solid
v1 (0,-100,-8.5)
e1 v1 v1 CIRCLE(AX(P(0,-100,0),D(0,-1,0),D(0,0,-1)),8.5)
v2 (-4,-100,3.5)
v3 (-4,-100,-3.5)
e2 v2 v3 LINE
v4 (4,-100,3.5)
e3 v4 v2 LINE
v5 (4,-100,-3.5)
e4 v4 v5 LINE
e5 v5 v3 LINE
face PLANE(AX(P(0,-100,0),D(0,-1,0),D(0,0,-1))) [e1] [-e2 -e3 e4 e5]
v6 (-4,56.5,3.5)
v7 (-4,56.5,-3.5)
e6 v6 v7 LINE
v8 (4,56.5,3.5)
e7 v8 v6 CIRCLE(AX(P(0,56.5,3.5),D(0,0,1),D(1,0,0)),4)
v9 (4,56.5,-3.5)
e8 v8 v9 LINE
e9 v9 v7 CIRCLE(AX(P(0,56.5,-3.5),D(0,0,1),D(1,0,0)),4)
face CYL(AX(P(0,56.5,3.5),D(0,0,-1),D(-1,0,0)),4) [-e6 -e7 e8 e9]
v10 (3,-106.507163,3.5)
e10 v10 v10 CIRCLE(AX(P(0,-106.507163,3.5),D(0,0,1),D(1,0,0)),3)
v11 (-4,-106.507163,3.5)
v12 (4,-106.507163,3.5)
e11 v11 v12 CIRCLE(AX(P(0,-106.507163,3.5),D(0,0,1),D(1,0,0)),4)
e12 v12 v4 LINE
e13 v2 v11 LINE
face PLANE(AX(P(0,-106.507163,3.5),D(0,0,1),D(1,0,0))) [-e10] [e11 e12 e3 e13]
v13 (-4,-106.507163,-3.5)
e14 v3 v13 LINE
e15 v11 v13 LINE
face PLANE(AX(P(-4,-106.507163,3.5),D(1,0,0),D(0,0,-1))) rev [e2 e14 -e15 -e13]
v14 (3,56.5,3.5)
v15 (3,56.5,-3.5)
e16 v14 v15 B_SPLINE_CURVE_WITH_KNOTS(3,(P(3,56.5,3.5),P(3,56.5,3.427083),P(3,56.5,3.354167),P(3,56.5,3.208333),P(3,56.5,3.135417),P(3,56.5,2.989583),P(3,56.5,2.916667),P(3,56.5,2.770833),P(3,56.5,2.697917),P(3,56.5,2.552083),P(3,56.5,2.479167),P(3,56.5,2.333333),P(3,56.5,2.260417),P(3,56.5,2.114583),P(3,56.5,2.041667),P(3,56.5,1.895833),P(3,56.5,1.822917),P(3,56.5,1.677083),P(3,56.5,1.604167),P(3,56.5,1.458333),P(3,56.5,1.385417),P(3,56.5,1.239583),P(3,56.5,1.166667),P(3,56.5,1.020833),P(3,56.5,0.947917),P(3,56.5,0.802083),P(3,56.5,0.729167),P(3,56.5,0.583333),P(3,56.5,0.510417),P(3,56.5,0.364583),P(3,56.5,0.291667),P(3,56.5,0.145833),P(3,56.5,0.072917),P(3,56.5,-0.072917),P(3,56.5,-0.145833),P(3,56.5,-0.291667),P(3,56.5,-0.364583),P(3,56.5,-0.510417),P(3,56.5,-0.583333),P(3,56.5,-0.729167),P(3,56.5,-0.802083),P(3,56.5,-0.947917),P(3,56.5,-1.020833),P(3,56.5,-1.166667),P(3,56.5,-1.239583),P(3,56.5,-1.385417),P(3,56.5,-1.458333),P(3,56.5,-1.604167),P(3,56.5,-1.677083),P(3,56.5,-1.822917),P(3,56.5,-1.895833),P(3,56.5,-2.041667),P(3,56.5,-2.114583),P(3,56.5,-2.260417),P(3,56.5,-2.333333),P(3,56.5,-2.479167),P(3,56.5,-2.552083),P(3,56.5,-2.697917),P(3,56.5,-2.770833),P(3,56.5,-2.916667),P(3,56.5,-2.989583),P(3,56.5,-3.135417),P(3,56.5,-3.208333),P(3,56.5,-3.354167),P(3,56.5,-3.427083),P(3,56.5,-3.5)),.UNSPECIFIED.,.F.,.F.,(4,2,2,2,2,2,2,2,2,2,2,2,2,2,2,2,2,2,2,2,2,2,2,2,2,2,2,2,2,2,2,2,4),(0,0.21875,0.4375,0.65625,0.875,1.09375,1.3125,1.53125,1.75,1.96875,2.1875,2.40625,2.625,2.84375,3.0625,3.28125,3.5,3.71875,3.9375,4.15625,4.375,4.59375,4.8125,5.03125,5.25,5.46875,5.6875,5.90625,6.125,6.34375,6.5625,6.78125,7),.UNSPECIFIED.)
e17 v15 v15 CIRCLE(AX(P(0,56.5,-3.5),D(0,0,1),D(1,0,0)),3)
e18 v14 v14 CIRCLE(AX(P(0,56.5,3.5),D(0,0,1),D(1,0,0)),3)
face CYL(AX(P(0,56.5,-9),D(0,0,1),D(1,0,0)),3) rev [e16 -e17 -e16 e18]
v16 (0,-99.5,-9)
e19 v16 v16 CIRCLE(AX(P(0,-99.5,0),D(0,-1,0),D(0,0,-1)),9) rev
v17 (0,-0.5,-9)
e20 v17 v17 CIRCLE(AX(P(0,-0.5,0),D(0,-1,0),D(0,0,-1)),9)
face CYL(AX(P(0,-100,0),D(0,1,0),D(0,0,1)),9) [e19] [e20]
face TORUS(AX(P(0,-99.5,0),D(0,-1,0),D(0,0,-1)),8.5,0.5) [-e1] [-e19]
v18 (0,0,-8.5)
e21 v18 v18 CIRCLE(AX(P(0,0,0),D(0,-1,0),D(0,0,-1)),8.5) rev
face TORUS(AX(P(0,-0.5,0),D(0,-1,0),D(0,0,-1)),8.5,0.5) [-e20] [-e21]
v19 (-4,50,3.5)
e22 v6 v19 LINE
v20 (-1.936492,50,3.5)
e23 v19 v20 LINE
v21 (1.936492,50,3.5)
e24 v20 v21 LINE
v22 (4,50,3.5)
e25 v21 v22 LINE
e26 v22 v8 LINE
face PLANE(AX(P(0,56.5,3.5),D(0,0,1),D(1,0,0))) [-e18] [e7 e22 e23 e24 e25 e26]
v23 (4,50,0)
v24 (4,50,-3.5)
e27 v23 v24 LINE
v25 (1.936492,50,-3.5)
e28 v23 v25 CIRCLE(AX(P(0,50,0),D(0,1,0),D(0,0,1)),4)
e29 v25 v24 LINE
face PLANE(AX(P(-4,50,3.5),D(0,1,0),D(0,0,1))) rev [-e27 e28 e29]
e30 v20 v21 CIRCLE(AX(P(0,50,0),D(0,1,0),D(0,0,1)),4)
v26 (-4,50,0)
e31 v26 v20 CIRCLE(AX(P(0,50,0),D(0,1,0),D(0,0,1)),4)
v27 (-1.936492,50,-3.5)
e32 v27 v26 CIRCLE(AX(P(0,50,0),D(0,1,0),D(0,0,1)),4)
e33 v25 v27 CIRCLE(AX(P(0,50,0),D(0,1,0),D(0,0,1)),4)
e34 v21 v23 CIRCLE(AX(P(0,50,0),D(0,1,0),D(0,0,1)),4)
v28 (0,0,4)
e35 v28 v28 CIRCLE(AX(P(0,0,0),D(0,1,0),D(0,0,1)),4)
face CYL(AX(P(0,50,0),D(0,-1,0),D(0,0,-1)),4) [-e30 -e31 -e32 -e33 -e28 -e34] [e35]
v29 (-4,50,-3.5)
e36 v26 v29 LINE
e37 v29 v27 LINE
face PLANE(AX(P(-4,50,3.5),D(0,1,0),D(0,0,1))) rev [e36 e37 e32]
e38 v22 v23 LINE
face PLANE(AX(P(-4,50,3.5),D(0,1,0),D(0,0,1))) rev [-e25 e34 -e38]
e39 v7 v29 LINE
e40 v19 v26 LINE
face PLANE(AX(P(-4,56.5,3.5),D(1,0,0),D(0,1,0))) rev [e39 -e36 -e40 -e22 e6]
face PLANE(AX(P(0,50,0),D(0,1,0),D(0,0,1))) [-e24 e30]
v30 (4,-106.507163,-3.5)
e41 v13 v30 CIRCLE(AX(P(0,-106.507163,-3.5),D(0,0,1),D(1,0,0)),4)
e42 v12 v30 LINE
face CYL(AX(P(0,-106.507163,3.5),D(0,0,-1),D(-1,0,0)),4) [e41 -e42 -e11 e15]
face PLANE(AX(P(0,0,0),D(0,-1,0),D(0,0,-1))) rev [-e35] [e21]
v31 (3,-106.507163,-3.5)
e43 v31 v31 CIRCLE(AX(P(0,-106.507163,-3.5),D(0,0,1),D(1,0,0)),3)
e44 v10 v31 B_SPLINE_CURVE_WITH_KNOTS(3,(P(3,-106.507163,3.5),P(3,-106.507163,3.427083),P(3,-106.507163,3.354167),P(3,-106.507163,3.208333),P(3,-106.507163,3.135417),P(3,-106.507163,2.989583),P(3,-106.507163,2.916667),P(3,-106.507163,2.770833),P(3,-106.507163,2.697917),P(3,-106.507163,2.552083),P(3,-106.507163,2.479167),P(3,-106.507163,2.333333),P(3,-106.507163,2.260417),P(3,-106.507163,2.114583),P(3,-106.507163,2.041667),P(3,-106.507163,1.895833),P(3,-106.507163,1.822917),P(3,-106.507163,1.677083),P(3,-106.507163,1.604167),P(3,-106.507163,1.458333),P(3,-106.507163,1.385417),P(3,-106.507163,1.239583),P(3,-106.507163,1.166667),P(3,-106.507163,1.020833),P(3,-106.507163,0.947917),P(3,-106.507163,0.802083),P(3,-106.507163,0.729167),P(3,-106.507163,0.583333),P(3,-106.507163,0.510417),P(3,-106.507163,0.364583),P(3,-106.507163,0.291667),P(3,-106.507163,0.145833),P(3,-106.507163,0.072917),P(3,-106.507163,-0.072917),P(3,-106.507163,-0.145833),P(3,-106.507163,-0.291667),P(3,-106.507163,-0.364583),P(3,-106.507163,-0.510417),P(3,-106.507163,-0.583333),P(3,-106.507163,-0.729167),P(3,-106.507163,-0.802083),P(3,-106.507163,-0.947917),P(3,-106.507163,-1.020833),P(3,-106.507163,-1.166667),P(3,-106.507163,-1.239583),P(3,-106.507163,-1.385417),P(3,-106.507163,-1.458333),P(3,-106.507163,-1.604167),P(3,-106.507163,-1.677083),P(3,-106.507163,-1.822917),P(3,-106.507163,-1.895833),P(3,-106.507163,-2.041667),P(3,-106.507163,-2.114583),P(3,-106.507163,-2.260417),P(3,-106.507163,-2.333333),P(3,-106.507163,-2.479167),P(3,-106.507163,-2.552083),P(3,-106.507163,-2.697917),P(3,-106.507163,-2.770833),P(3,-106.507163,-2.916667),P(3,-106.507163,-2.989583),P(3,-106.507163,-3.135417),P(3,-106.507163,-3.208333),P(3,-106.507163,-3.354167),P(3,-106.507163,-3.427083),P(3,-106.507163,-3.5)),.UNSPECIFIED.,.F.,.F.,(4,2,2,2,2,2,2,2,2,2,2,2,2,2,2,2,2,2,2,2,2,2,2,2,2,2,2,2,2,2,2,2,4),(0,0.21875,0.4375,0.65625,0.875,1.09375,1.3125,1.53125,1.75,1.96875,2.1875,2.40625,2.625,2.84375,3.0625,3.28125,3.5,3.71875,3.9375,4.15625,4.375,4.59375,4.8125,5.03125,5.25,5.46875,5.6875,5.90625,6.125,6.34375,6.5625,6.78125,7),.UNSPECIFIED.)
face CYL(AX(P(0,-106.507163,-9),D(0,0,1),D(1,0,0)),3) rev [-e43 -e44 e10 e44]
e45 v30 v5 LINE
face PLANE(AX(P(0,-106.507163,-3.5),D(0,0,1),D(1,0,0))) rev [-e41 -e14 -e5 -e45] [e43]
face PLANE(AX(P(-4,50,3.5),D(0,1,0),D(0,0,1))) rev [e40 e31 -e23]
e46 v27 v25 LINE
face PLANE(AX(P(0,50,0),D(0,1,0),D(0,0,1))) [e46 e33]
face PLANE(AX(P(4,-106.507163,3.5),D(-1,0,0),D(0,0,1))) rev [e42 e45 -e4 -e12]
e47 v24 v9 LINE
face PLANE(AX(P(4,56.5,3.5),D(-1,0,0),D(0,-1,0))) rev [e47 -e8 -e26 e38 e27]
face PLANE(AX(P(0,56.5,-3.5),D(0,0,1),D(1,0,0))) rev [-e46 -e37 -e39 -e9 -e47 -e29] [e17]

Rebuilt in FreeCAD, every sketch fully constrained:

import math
import FreeCAD as App
import Part
import Sketcher
from FreeCAD import Vector


def edges_at(feature, points):
    """Names of the edges that pass closest to the given points."""
    edges = feature.Shape.Edges
    near = lambda p: min(range(len(edges)), key=lambda i: edges[i].distToShape(Part.Vertex(*p))[0])
    return sorted({f"Edge{near(p) + 1}" for p in points})

doc = App.newDocument("Part")
body = doc.addObject("PartDesign::Body", "Body")

sketch1 = body.newObject("Sketcher::SketchObject", "Sketch")
sketch1.AttachmentSupport = (doc.getObject("XZ_Plane"), [""])
sketch1.MapMode = "FlatFace"
sketch1.addGeometry(Part.Circle(Vector(0, 0, 0), Vector(0, 0, 1), 4), False)
sketch1.addConstraint([
    Sketcher.Constraint("Coincident", 0, 3, -1, 1),
    Sketcher.Constraint("Diameter", 0, 8.0),
])
pad1 = body.newObject("PartDesign::Pad", "Pad")
pad1.Profile = sketch1
pad1.Length = 50
pad1.Reversed = True

sketch2 = body.newObject("Sketcher::SketchObject", "Sketch001")
sketch2.AttachmentSupport = (doc.getObject("XZ_Plane"), [""])
sketch2.MapMode = "FlatFace"
sketch2.addGeometry(Part.Circle(Vector(0, 0, 0), Vector(0, 0, 1), 9), False)
sketch2.addConstraint([
    Sketcher.Constraint("Coincident", 0, 3, -1, 1),
    Sketcher.Constraint("Diameter", 0, 18.0),
])
pad2 = body.newObject("PartDesign::Pad", "Pad001")
pad2.Profile = sketch2
pad2.Length = 100
doc.recompute()

fillet = body.newObject("PartDesign::Fillet", "Fillet")
fillet.Base = (pad2, edges_at(pad2, [(0, 0, 9), (0, -100, 9)]))
fillet.Radius = 0.5

sketch3 = body.newObject("Sketcher::SketchObject", "Sketch002")
sketch3.AttachmentSupport = (doc.getObject("XY_Plane"), [""])
sketch3.MapMode = "FlatFace"
sketch3.addGeometry([
    Part.LineSegment(Vector(-4, -100, 0), Vector(-4, -106.5, 0)),
    Part.ArcOfCircle(Part.Circle(Vector(0, -106.5, 0), Vector(0, 0, 1), 4), math.radians(180), math.radians(360)),
    Part.LineSegment(Vector(4, -106.5, 0), Vector(4, -100, 0)),
    Part.LineSegment(Vector(4, -100, 0), Vector(-4, -100, 0)),
], False)
sketch3.addConstraint([
    Sketcher.Constraint("Tangent", 0, 2, 1, 1),
    Sketcher.Constraint("Tangent", 1, 2, 2, 1),
    Sketcher.Constraint("Coincident", 2, 2, 3, 1),
    Sketcher.Constraint("Coincident", 3, 2, 0, 1),
    Sketcher.Constraint("Vertical", 0),
    Sketcher.Constraint("Vertical", 2),
    Sketcher.Constraint("Horizontal", 3),
    Sketcher.Constraint("PointOnObject", 1, 3, -2),
    Sketcher.Constraint("Radius", 1, 4.0),
    Sketcher.Constraint("DistanceY", 2, 2, -1, 1, 100.0),
    Sketcher.Constraint("DistanceY", 0, 2, 0, 1, 6.507163),
])
pad3 = body.newObject("PartDesign::Pad", "Pad002")
pad3.Profile = sketch3
pad3.Length = 7
pad3.Midplane = True

sketch4 = body.newObject("Sketcher::SketchObject", "Sketch003")
sketch4.AttachmentSupport = (doc.getObject("XY_Plane"), [""])
sketch4.MapMode = "FlatFace"
sketch4.addGeometry([
    Part.LineSegment(Vector(-4, 56.5, 0), Vector(-4, 50, 0)),
    Part.LineSegment(Vector(-4, 50, 0), Vector(4, 50, 0)),
    Part.LineSegment(Vector(4, 50, 0), Vector(4, 56.5, 0)),
    Part.ArcOfCircle(Part.Circle(Vector(0, 56.5, 0), Vector(0, 0, 1), 4), math.radians(0), math.radians(180)),
], False)
sketch4.addConstraint([
    Sketcher.Constraint("Coincident", 0, 2, 1, 1),
    Sketcher.Constraint("Coincident", 1, 2, 2, 1),
    Sketcher.Constraint("Tangent", 2, 2, 3, 1),
    Sketcher.Constraint("Tangent", 3, 2, 0, 1),
    Sketcher.Constraint("Vertical", 0),
    Sketcher.Constraint("Horizontal", 1),
    Sketcher.Constraint("Vertical", 2),
    Sketcher.Constraint("PointOnObject", 3, 3, -2),
    Sketcher.Constraint("Radius", 3, 4.0),
    Sketcher.Constraint("DistanceY", 0, 2, 0, 1, 6.5),
    Sketcher.Constraint("DistanceY", -1, 1, 0, 2, 50.0),
])
pad4 = body.newObject("PartDesign::Pad", "Pad003")
pad4.Profile = sketch4
pad4.Length = 7
pad4.Midplane = True

sketch5 = body.newObject("Sketcher::SketchObject", "Sketch004")
sketch5.AttachmentSupport = (doc.getObject("XY_Plane"), [""])
sketch5.MapMode = "FlatFace"
sketch5.AttachmentOffset = App.Placement(Vector(0, 0, 3.5), App.Rotation())
sketch5.addGeometry(Part.Circle(Vector(0, 56.5, 0), Vector(0, 0, 1), 3), False)
sketch5.addConstraint([
    Sketcher.Constraint("PointOnObject", 0, 3, -2),
    Sketcher.Constraint("Diameter", 0, 6.0),
    Sketcher.Constraint("DistanceY", -1, 1, 0, 3, 56.5),
])
pocket1 = body.newObject("PartDesign::Pocket", "Pocket")
pocket1.Profile = sketch5
pocket1.Type = "ThroughAll"

sketch6 = body.newObject("Sketcher::SketchObject", "Sketch005")
sketch6.AttachmentSupport = (doc.getObject("XY_Plane"), [""])
sketch6.MapMode = "FlatFace"
sketch6.AttachmentOffset = App.Placement(Vector(0, 0, 3.5), App.Rotation())
sketch6.addGeometry(Part.Circle(Vector(0, -106.5, 0), Vector(0, 0, 1), 3), False)
sketch6.addConstraint([
    Sketcher.Constraint("PointOnObject", 0, 3, -2),
    Sketcher.Constraint("Diameter", 0, 6.0),
    Sketcher.Constraint("DistanceY", 0, 3, -1, 1, 106.507163),
])
pocket2 = body.newObject("PartDesign::Pocket", "Pocket001")
pocket2.Profile = sketch6
pocket2.Type = "ThroughAll"

doc.recompute()
